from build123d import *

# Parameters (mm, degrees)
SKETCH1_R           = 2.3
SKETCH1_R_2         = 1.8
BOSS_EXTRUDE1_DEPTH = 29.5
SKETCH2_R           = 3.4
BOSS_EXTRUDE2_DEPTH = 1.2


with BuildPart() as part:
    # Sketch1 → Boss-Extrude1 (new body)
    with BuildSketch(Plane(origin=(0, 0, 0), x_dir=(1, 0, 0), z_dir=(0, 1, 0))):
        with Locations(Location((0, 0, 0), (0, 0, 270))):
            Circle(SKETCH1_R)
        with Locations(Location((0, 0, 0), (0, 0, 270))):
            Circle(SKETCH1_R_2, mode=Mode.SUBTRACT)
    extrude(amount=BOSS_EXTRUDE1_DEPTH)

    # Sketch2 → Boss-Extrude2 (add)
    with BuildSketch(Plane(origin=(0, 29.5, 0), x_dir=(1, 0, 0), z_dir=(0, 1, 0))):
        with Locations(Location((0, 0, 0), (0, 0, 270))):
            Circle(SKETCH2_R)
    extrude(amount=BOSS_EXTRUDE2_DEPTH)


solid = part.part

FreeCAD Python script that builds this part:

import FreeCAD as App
import Part
import Sketcher
from FreeCAD import Vector
Q = App.Units.Quantity

doc = App.newDocument("Part")
body = doc.addObject("PartDesign::Body", "Body")

sketch1 = body.newObject("Sketcher::SketchObject", "Sketch")
sketch1.AttachmentSupport = (doc.getObject("XZ_Plane"), [""])
sketch1.MapMode = "FlatFace"
sketch1.addGeometry([
    Part.Circle(Vector(0, 0, 0), Vector(0, 0, 1), 2.3),
    Part.Circle(Vector(0, 0, 0), Vector(0, 0, 1), 1.8),
], False)
sketch1.addConstraint([
    Sketcher.Constraint("Coincident", 0, 3, -1, 1),
    Sketcher.Constraint("Coincident", 1, 3, -1, 1),
    Sketcher.Constraint("Diameter", 0, Q("4.6 mm")),
    Sketcher.Constraint("Diameter", 1, Q("3.6 mm")),
])
pad1 = body.newObject("PartDesign::Pad", "Pad")
pad1.Profile = sketch1
pad1.Length = 29.5
pad1.Reversed = True

sketch2 = body.newObject("Sketcher::SketchObject", "Sketch001")
sketch2.AttachmentSupport = (doc.getObject("XZ_Plane"), [""])
sketch2.MapMode = "FlatFace"
sketch2.AttachmentOffset = App.Placement(Vector(0, 0, -29.5), App.Rotation())
sketch2.addGeometry(Part.Circle(Vector(0, 0, 0), Vector(0, 0, 1), 3.4), False)
sketch2.addConstraint([
    Sketcher.Constraint("Coincident", 0, 3, -1, 1),
    Sketcher.Constraint("Diameter", 0, Q("6.8 mm")),
])
pad2 = body.newObject("PartDesign::Pad", "Pad001")
pad2.Profile = sketch2
pad2.Length = 1.2
pad2.Reversed = True

doc.recompute()
